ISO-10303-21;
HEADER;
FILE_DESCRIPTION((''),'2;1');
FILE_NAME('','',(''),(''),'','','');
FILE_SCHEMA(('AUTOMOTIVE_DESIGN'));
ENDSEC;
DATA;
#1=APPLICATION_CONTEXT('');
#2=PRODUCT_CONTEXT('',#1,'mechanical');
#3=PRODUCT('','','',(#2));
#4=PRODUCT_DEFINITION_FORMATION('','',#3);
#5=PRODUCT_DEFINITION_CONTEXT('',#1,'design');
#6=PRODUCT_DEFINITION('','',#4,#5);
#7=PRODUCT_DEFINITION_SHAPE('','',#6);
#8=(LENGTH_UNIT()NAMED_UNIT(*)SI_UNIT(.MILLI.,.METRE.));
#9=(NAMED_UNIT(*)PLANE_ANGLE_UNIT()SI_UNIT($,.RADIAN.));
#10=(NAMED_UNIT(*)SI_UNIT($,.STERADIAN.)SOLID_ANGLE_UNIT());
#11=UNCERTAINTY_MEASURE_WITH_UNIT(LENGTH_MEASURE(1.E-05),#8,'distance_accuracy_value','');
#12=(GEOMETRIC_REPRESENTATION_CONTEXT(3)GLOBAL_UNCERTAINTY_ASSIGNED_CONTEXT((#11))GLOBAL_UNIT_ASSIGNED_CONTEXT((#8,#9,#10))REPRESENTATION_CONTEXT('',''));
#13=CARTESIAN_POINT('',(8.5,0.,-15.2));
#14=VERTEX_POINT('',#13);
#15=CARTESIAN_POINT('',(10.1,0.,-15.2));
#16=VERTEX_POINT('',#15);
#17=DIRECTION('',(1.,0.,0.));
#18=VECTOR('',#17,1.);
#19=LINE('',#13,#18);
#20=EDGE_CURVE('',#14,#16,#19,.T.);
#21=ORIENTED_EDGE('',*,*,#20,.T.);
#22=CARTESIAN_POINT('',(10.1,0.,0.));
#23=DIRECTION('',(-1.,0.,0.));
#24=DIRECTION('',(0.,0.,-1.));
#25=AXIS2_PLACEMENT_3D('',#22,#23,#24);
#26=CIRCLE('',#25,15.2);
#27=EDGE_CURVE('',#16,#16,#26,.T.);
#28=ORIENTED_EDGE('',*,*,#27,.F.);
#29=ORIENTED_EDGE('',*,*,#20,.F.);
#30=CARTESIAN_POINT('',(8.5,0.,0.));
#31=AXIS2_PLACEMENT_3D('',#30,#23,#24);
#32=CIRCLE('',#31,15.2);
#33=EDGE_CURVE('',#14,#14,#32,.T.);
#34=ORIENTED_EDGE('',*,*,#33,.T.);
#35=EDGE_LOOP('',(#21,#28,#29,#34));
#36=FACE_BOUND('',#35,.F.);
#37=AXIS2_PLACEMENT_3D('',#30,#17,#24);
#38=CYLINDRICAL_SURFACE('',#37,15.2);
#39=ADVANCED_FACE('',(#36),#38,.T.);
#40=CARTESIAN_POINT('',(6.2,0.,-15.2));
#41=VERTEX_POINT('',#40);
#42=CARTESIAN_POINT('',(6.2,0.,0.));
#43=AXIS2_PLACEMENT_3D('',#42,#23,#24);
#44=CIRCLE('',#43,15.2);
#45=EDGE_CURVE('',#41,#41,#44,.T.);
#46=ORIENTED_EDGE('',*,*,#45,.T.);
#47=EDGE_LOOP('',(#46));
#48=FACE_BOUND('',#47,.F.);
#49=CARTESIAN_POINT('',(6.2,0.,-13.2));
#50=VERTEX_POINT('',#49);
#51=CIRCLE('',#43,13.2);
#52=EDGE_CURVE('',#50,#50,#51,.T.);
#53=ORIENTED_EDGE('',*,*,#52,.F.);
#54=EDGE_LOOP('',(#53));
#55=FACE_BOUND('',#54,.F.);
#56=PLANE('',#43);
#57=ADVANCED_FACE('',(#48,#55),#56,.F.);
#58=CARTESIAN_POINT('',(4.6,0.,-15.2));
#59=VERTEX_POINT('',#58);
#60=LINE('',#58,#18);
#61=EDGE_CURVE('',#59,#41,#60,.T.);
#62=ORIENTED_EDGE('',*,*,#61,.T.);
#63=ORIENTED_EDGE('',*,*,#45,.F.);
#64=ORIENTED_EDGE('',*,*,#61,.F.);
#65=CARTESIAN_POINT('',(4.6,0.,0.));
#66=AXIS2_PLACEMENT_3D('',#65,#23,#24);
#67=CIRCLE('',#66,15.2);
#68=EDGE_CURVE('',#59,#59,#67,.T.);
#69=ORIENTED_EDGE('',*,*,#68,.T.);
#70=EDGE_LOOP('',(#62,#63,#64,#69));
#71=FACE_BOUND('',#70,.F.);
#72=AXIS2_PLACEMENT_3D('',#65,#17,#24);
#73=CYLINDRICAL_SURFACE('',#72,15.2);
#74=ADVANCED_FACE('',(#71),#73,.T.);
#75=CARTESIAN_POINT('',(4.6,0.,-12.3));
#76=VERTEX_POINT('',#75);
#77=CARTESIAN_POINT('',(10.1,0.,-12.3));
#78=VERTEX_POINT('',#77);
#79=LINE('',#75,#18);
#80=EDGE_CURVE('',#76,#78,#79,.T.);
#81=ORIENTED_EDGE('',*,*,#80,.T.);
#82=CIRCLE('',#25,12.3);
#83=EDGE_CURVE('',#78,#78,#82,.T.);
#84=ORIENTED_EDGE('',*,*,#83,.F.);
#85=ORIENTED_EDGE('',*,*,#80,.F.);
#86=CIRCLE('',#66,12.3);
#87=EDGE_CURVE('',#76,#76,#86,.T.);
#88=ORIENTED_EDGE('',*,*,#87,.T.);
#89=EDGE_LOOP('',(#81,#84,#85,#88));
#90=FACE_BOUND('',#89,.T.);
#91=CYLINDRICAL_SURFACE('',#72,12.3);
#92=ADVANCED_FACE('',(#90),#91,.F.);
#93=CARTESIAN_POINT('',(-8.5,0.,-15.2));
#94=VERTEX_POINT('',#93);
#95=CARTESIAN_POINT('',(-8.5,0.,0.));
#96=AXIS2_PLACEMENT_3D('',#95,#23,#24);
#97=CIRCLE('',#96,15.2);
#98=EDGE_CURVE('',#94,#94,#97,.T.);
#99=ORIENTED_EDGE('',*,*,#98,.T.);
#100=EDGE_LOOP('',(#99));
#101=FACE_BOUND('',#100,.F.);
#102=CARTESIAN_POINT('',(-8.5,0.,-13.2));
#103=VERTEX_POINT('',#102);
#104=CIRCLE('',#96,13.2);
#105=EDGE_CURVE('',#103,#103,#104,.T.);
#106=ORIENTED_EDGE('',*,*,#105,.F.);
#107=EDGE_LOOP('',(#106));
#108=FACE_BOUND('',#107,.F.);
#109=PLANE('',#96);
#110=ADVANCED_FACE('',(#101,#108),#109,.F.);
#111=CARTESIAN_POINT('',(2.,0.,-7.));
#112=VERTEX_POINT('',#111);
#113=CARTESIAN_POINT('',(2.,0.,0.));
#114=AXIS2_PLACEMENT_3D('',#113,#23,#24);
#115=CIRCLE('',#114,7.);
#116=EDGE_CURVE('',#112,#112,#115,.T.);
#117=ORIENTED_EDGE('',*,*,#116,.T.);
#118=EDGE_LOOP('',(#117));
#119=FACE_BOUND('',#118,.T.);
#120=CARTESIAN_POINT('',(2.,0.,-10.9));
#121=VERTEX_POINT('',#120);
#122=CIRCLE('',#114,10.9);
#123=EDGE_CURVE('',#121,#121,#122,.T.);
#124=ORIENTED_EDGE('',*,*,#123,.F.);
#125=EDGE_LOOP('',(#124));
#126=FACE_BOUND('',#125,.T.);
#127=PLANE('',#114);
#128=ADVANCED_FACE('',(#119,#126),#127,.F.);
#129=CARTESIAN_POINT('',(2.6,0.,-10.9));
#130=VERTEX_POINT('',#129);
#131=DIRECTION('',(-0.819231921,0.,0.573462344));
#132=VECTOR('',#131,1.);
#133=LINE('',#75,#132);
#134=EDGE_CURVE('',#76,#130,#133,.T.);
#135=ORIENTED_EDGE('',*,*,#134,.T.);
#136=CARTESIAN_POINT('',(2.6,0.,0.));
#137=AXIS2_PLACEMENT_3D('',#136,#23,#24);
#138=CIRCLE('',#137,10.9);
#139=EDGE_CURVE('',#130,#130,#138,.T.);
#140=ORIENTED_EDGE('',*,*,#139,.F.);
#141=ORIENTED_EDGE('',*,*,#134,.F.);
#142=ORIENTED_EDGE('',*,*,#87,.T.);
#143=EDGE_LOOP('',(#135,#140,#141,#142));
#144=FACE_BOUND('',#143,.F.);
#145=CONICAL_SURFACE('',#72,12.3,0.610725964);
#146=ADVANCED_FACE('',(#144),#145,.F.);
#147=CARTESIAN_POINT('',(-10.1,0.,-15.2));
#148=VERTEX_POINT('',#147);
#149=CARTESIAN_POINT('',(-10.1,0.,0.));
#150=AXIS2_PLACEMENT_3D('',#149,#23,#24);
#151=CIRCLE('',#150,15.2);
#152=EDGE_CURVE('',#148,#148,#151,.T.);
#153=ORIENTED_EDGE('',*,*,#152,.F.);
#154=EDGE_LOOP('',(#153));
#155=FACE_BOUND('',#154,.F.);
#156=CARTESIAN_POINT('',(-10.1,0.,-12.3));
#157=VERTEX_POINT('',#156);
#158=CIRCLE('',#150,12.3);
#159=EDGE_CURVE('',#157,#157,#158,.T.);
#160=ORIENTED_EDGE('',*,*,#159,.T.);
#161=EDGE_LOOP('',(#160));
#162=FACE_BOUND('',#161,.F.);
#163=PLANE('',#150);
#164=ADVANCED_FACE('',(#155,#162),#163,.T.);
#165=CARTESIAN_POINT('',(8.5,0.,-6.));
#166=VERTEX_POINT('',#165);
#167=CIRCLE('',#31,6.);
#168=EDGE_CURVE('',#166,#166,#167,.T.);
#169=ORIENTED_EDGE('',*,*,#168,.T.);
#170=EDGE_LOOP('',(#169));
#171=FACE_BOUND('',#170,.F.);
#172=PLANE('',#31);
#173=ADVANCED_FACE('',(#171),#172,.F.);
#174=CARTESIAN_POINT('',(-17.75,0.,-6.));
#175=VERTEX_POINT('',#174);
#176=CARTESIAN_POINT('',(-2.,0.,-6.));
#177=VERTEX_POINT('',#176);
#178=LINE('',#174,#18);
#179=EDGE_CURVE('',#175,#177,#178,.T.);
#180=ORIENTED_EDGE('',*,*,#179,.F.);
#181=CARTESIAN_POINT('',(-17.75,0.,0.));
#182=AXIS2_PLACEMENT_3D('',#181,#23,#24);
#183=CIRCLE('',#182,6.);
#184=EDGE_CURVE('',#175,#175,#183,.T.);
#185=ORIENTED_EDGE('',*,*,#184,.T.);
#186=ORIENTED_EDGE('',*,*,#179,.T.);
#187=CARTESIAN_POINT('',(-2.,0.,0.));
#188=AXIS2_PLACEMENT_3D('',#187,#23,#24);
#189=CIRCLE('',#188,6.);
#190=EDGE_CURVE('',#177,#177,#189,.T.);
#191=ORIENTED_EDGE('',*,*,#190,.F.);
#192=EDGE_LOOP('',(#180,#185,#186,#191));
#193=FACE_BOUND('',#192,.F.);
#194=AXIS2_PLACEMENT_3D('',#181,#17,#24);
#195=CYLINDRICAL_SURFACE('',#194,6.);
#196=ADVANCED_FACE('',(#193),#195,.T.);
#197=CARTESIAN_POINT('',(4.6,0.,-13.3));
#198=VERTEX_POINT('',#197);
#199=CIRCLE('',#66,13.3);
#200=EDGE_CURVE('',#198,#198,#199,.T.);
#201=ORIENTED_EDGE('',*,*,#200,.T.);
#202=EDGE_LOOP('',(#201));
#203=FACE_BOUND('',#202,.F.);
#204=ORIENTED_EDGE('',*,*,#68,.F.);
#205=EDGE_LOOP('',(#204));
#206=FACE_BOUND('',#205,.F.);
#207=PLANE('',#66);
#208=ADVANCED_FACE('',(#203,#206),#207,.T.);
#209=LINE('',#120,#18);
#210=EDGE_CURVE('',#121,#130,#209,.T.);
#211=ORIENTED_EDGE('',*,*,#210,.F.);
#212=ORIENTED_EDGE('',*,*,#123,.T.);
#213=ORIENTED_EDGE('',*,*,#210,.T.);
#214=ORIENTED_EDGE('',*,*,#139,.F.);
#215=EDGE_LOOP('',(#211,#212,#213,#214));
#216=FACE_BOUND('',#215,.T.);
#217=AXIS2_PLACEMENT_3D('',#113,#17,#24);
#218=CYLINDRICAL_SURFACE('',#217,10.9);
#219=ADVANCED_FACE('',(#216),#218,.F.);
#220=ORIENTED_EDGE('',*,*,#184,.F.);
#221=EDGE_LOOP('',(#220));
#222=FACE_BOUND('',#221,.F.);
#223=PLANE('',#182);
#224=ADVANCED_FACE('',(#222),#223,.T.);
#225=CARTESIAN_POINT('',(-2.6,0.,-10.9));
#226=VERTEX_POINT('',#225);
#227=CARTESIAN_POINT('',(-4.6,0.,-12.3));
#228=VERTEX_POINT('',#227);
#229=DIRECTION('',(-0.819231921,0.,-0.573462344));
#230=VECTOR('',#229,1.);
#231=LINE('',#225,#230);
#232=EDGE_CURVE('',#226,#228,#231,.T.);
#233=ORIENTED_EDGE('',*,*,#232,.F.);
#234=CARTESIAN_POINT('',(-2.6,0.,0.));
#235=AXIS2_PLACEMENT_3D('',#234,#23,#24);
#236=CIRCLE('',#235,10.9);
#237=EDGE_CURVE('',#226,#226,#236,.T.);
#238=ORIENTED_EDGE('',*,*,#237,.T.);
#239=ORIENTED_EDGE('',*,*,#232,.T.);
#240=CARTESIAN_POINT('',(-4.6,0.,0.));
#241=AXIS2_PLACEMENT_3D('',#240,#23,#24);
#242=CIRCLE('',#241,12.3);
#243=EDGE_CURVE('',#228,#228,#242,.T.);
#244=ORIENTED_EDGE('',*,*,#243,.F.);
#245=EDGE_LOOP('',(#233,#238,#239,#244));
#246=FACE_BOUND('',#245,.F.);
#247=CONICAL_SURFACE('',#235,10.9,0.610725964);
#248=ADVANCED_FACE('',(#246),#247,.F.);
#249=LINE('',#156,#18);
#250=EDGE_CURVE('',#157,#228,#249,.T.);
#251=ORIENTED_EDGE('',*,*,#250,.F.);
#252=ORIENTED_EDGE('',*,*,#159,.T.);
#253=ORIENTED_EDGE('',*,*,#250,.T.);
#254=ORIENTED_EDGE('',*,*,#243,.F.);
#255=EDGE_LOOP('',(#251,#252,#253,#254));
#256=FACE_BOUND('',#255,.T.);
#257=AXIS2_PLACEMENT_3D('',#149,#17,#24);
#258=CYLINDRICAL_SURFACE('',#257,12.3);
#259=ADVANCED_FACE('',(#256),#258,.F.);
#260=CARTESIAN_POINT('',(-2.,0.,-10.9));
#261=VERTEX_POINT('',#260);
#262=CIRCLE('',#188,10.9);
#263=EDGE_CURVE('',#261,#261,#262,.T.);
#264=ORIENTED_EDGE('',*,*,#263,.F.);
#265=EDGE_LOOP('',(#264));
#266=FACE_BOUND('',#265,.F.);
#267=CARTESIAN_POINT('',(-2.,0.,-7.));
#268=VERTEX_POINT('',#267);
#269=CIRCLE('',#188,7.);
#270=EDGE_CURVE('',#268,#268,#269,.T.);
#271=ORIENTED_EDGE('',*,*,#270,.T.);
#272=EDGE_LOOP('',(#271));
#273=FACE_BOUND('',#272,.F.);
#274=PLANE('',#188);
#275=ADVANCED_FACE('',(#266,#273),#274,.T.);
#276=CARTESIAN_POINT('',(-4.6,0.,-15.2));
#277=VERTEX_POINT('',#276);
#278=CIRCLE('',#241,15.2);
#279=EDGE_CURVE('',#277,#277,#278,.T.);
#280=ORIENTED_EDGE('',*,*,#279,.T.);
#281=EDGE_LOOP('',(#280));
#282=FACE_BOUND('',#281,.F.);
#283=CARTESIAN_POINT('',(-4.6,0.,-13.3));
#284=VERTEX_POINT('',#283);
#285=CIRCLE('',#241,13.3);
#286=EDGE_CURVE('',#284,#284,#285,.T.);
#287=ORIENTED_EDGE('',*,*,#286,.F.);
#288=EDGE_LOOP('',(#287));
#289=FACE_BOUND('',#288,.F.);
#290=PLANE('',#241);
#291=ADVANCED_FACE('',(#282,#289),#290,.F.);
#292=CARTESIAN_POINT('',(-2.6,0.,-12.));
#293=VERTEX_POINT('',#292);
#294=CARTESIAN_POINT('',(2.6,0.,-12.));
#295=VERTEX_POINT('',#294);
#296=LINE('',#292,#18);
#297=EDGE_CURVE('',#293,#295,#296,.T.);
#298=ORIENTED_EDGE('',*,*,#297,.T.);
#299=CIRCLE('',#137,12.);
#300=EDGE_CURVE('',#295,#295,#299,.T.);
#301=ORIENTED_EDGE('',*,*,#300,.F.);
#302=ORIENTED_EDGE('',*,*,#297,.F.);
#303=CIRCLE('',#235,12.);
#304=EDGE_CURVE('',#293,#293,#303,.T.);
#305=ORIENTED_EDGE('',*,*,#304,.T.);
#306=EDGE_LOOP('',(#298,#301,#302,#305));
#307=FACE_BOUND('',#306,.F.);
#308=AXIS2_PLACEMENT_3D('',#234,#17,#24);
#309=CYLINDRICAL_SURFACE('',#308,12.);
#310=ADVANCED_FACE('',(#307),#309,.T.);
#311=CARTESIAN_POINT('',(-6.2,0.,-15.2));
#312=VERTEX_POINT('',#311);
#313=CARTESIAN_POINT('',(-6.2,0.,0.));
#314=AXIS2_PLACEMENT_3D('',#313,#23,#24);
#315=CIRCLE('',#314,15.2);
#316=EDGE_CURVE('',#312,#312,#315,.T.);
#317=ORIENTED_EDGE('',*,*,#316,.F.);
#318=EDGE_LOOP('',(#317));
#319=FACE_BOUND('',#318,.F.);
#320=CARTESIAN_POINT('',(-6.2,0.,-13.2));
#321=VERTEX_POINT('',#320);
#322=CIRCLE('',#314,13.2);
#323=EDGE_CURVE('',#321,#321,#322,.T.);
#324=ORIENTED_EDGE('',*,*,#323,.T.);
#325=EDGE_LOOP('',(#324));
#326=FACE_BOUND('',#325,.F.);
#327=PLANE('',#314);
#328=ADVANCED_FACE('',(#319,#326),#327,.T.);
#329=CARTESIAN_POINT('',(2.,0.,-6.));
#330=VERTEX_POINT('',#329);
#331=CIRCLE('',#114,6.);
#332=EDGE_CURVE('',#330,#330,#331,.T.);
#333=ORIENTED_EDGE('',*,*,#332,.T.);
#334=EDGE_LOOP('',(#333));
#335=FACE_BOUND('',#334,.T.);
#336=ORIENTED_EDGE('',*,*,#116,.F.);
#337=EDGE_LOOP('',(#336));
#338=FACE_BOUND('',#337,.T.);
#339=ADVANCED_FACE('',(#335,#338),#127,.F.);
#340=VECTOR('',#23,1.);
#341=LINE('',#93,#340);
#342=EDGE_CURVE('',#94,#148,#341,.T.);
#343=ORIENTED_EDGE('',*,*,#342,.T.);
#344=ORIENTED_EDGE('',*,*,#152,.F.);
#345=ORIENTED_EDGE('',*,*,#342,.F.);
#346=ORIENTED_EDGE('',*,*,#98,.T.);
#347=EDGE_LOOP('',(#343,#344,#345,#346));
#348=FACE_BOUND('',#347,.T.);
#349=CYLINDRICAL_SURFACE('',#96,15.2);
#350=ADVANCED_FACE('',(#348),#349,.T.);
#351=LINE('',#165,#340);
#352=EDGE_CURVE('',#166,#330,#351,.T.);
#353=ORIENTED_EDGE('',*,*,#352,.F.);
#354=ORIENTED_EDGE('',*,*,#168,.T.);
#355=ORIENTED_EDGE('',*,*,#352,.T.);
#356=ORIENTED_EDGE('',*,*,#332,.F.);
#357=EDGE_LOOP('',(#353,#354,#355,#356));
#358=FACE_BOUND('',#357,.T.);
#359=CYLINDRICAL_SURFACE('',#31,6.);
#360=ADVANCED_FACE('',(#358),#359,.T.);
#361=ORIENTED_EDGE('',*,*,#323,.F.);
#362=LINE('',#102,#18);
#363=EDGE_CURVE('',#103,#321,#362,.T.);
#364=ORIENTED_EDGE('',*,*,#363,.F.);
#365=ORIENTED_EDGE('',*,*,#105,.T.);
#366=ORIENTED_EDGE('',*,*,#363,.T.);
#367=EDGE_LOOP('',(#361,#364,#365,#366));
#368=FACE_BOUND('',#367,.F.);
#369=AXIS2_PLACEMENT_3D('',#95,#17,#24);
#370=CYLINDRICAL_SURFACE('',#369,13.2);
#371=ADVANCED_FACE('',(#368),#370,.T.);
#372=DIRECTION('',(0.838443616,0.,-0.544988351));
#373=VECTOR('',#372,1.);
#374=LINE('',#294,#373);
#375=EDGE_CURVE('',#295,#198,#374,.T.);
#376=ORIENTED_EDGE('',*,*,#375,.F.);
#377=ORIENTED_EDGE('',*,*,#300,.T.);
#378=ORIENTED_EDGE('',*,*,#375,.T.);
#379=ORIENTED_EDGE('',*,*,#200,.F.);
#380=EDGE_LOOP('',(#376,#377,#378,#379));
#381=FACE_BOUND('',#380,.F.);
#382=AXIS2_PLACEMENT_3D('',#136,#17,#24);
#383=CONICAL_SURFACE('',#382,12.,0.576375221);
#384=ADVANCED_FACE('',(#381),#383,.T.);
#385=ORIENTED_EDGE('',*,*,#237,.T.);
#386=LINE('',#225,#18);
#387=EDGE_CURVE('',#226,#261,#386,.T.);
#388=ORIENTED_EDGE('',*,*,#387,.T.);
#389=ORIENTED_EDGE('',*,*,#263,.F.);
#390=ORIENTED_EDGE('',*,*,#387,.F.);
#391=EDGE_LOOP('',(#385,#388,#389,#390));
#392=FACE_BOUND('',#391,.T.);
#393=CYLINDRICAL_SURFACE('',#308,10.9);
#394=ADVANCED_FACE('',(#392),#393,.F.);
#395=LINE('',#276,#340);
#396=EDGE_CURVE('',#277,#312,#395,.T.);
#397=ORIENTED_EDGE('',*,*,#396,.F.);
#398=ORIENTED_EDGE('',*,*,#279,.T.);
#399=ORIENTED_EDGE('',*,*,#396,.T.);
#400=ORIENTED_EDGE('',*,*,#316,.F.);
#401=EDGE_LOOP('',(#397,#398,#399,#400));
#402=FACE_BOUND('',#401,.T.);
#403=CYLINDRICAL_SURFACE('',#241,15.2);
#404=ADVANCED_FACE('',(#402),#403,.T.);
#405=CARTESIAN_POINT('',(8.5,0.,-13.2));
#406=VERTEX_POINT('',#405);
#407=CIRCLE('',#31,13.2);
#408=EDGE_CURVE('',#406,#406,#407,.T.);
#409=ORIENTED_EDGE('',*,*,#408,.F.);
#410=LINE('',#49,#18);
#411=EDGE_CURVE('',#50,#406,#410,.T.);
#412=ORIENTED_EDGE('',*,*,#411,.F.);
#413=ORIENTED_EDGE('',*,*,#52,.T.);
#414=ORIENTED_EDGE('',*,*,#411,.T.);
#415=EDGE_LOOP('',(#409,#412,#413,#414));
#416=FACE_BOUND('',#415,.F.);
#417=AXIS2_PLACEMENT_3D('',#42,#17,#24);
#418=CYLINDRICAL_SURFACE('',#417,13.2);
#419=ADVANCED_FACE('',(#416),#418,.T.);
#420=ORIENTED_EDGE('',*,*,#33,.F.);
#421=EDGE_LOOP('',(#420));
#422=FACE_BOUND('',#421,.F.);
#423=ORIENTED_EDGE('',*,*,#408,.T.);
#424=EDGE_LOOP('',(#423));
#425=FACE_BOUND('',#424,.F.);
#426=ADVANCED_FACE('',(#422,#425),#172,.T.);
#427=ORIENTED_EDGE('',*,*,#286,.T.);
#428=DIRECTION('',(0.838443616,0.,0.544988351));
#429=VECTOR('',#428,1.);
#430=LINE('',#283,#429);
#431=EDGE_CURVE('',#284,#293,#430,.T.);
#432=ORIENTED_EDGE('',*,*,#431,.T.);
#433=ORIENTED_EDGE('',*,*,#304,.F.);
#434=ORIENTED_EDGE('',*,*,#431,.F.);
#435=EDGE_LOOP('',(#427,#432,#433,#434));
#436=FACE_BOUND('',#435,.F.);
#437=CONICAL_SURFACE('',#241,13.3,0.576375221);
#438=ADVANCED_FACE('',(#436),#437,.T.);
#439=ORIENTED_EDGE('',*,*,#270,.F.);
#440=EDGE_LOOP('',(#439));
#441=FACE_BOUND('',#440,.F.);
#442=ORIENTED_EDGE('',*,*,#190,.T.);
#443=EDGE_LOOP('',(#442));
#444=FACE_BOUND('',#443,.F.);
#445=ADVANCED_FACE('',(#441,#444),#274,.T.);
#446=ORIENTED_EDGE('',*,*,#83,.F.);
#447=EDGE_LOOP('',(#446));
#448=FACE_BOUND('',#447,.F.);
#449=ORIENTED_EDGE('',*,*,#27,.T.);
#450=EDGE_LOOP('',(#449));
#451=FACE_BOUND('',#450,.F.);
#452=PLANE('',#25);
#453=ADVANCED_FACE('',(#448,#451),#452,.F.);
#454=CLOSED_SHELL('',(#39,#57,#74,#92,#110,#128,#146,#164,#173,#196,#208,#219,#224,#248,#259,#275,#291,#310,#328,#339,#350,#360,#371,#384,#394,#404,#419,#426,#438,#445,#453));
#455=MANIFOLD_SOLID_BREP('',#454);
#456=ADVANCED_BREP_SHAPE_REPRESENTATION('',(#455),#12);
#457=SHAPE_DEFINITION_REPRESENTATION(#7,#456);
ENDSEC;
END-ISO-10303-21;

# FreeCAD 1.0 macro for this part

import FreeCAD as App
import Part
import Sketcher
from FreeCAD import Vector


def add_polygon(sketch, points):
    """Adds a closed chain of lines whose ends are joined by coincident constraints."""
    first, n = sketch.GeometryCount, len(points)
    for a, b in zip(points, points[1:] + points[:1]):
        sketch.addGeometry(Part.LineSegment(App.Vector(*a, 0), App.Vector(*b, 0)), False)
    for i in range(n):
        sketch.addConstraint(Sketcher.Constraint("Coincident", first + i, 2, first + (i + 1) % n, 1))

doc = App.newDocument("Part")
body = doc.addObject("PartDesign::Body", "Body")

# Sketch on XZ plane
sketch1 = body.newObject("Sketcher::SketchObject", "Sketch")
sketch1.AttachmentSupport = (doc.getObject("XZ_Plane"), [""])
sketch1.MapMode = "FlatFace"
add_polygon(sketch1, [(-17.75, -6), (-17.75, 0), (8.5, 0), (8.5, -6), (2, -6), (2, -10.9), (2.6, -10.9), (4.6, -12.3), (10.1, -12.3), (10.1, -15.2), (8.5, -15.2), (8.5, -13.2), (6.2, -13.2), (6.2, -15.2), (4.6, -15.2), (4.6, -13.3), (2.6, -12), (-2.6, -12), (-4.6, -13.3), (-4.6, -15.2), (-6.2, -15.2), (-6.2, -13.2), (-8.5, -13.2), (-8.5, -15.2), (-10.1, -15.2), (-10.1, -12.3), (-4.6, -12.3), (-2.6, -10.9), (-2, -10.9), (-2, -6)])  # lines 0-29
sketch1.addConstraint([
    Sketcher.Constraint("Vertical", 0),
    Sketcher.Constraint("Horizontal", 1),
    Sketcher.Constraint("Vertical", 2),
    Sketcher.Constraint("Horizontal", 3),
    Sketcher.Constraint("Vertical", 4),
    Sketcher.Constraint("Horizontal", 5),
    Sketcher.Constraint("Horizontal", 7),
    Sketcher.Constraint("Vertical", 8),
    Sketcher.Constraint("Horizontal", 9),
    Sketcher.Constraint("Vertical", 10),
    Sketcher.Constraint("Horizontal", 11),
    Sketcher.Constraint("Vertical", 12),
    Sketcher.Constraint("Horizontal", 13),
    Sketcher.Constraint("Vertical", 14),
    Sketcher.Constraint("Horizontal", 16),
    Sketcher.Constraint("Vertical", 18),
    Sketcher.Constraint("Horizontal", 19),
    Sketcher.Constraint("Vertical", 20),
    Sketcher.Constraint("Horizontal", 21),
    Sketcher.Constraint("Vertical", 22),
    Sketcher.Constraint("Horizontal", 23),
    Sketcher.Constraint("Vertical", 24),
    Sketcher.Constraint("Horizontal", 25),
    Sketcher.Constraint("Horizontal", 27),
    Sketcher.Constraint("Vertical", 28),
    Sketcher.Constraint("Horizontal", 29),
    Sketcher.Constraint("Symmetric", 14, 2, 17, 2, -2),
    Sketcher.Constraint("Symmetric", 12, 2, 19, 2, -2),
    Sketcher.Constraint("Symmetric", 10, 2, 21, 2, -2),
    Sketcher.Constraint("Symmetric", 8, 2, 23, 2, -2),
    Sketcher.Constraint("Symmetric", 6, 2, 25, 2, -2),
    Sketcher.Constraint("Symmetric", 5, 2, 26, 2, -2),
    Sketcher.Constraint("Symmetric", 3, 2, 28, 2, -2),
    Sketcher.Constraint("PointOnObject", 0, 2, -1),
    Sketcher.Constraint("Horizontal", 9, 2, 12, 2),
    Sketcher.Constraint("Vertical", 2, 2, 9, 2),
    Sketcher.Constraint("Vertical", 6, 2, 13, 2),
    Sketcher.Constraint("Vertical", 5, 2, 15, 2),
    Sketcher.Constraint("Vertical", 16, 2, 26, 2),
    Sketcher.Constraint("Equal", 9, 13),
    Sketcher.Constraint("DistanceY", 0, 1, 0, 2, 6.0),
    Sketcher.Constraint("DistanceY", 10, 1, 10, 2, 2.0),
    Sketcher.Constraint("DistanceX", 7, 1, 7, 2, 5.5),
    Sketcher.Constraint("DistanceX", 9, 2, 9, 1, 1.6),
    Sketcher.Constraint("DistanceY", 14, 1, 14, 2, 1.9),
    Sketcher.Constraint("DistanceX", -1, 1, 3, 2, 2.0),
    Sketcher.Constraint("DistanceY", 15, 2, -1, 1, 12.0),
    Sketcher.Constraint("DistanceX", 5, 2, 6, 2, 2.0),
    Sketcher.Constraint("DistanceY", 14, 2, 6, 2, 1.0),
    Sketcher.Constraint("DistanceY", 4, 2, -1, 1, 10.9),
    Sketcher.Constraint("DistanceX", -1, 1, 5, 2, 2.6),
    Sketcher.Constraint("DistanceY", 6, 2, -1, 1, 12.3),
    Sketcher.Constraint("DistanceX", 0, 2, -1, 1, 17.75),
])
revolution = body.newObject("PartDesign::Revolution", "Revolution")
revolution.Profile = sketch1
revolution.ReferenceAxis = (sketch1, ["H_Axis"])
revolution.Angle = 360

doc.recompute()
